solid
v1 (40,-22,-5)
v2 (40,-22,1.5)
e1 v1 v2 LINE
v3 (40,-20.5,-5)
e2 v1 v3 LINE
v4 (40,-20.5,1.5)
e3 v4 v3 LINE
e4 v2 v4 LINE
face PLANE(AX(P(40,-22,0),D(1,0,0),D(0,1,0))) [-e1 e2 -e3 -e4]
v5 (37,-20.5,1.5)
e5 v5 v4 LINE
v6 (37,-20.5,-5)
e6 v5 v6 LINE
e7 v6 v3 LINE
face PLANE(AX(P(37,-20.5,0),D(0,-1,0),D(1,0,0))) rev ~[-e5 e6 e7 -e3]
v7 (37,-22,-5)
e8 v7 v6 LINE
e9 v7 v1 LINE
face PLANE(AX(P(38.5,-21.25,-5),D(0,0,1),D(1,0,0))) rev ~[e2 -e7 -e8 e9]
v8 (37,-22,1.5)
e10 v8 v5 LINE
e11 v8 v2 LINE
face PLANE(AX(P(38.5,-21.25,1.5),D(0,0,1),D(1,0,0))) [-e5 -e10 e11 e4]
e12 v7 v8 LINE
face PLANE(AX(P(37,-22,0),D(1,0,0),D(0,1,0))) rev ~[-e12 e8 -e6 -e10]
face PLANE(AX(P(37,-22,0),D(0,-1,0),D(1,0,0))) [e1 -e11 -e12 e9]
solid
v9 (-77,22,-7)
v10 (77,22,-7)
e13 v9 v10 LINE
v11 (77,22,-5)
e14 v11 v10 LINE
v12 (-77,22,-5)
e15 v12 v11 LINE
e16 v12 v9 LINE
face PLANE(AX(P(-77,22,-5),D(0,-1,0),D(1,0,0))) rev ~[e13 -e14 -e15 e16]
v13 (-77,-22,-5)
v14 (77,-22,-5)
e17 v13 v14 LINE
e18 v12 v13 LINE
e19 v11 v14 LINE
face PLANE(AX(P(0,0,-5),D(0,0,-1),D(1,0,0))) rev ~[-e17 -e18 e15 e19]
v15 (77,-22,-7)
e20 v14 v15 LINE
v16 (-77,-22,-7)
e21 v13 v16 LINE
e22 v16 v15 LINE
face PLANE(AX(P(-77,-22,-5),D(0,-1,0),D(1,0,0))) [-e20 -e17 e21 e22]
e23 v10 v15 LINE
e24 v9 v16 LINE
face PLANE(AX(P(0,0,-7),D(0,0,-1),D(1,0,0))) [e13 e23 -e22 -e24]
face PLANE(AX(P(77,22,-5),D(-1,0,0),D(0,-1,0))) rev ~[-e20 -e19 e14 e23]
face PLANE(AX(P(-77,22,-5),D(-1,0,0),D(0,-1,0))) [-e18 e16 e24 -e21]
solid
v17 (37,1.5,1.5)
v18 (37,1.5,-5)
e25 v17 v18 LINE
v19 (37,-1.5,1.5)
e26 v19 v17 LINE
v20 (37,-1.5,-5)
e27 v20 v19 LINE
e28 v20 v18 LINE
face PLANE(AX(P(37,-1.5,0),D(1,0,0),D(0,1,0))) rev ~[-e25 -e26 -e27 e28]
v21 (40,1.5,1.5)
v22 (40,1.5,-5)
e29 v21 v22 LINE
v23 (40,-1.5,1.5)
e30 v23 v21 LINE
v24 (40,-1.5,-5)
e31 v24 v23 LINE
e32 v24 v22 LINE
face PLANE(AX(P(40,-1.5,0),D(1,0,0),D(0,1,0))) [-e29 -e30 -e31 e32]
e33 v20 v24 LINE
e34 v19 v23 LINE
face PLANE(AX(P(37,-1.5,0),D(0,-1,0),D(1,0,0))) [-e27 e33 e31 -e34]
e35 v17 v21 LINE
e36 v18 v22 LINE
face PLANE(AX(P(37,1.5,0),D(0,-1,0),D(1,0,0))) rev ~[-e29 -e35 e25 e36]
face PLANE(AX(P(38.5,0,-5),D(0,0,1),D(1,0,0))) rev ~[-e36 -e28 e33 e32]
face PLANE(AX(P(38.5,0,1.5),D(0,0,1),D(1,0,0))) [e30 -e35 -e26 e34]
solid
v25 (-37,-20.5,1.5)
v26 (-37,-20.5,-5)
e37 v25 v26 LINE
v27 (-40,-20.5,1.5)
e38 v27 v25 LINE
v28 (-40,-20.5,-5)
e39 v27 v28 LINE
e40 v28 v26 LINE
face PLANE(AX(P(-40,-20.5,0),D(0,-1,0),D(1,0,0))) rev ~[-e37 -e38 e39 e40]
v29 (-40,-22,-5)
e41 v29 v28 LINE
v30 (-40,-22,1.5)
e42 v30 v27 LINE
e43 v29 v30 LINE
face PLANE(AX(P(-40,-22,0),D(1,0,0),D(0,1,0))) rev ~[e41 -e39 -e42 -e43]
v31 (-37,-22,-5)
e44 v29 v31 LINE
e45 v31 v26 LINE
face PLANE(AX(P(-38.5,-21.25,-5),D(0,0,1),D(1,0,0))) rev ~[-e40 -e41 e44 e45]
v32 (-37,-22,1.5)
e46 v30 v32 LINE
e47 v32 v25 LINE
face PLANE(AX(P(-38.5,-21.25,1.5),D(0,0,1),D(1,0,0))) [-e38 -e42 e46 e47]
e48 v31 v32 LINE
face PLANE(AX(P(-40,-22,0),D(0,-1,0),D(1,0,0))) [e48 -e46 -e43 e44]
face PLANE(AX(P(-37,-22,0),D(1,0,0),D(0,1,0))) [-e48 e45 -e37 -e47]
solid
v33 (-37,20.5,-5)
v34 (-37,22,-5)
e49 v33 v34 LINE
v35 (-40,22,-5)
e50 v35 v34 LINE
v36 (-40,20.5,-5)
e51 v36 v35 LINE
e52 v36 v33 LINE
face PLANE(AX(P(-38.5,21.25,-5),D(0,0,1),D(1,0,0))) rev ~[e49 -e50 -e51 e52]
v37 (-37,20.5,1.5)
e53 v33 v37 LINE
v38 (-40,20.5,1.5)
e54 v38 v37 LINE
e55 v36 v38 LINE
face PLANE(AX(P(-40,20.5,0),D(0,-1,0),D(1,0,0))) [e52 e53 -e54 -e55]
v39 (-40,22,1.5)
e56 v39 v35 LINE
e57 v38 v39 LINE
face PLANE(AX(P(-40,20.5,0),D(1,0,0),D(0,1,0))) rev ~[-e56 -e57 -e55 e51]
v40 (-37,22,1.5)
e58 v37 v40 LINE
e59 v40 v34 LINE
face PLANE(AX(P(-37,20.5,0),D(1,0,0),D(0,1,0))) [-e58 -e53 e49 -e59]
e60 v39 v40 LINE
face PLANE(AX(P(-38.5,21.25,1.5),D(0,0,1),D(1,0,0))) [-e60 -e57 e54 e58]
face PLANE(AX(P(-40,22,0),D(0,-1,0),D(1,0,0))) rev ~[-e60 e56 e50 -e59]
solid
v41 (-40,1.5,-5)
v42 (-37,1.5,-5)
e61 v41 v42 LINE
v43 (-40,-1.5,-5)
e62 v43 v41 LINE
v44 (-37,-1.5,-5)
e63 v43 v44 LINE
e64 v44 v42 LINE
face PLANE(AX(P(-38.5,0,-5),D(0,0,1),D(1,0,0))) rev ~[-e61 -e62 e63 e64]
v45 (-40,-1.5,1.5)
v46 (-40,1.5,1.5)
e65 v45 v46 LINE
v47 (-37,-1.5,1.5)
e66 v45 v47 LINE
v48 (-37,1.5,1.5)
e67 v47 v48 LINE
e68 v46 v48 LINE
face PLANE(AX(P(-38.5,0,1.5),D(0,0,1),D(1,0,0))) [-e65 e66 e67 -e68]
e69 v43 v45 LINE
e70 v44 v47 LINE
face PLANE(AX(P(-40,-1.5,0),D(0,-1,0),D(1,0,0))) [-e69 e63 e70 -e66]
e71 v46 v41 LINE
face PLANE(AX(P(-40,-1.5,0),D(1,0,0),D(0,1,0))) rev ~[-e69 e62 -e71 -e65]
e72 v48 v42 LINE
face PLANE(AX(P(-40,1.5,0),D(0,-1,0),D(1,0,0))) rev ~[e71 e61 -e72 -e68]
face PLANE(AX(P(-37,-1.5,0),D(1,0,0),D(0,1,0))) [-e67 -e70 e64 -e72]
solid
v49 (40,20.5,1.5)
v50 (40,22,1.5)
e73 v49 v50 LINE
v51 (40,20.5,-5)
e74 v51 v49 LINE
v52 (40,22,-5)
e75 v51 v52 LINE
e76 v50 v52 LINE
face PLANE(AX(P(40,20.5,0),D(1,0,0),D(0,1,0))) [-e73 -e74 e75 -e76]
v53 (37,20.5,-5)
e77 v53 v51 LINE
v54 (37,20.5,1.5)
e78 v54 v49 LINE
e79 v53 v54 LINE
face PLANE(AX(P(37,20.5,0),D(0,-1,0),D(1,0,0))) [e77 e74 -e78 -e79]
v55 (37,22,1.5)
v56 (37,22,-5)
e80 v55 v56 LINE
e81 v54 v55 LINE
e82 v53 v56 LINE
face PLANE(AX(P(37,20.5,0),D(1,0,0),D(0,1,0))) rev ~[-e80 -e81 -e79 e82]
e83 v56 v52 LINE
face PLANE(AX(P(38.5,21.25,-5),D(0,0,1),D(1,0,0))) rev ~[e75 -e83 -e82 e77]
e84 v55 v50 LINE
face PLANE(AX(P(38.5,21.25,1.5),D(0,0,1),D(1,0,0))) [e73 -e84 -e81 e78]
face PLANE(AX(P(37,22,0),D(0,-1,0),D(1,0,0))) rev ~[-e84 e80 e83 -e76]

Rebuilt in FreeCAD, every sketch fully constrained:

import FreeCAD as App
import Part
import Sketcher
from FreeCAD import Vector


def add_polygon(sketch, points):
    """Adds a closed chain of lines whose ends are joined by coincident constraints."""
    first, n = sketch.GeometryCount, len(points)
    for a, b in zip(points, points[1:] + points[:1]):
        sketch.addGeometry(Part.LineSegment(App.Vector(*a, 0), App.Vector(*b, 0)), False)
    for i in range(n):
        sketch.addConstraint(Sketcher.Constraint("Coincident", first + i, 2, first + (i + 1) % n, 1))

doc = App.newDocument("Part")
params = doc.addObject("Spreadsheet::Sheet", "Params")
for row, (alias, value) in enumerate([
    ("sketch1_width", "3 mm"),
    ("sketch1_height", "1.5 mm"),
    ("pad1_length", "1.5 mm"),
    ("pad1_length2", "5 mm"),
    ("sketch2_width", "154 mm"),
    ("sketch2_height", "44 mm"),
    ("pad2_length", "2 mm"),
], start=1):
    params.set(f"A{row}", alias)
    params.set(f"B{row}", "=" + value)
    params.setAlias(f"B{row}", alias)

body = doc.addObject("PartDesign::Body", "Body")
body.AllowCompound = True

# Sketch on XY plane
sketch1 = doc.addObject("Sketcher::SketchObject", "Sketch")
body.addObject(sketch1)
sketch1.AttachmentSupport = (doc.XY_Plane, [""])
sketch1.MapMode = "FlatFace"
add_polygon(sketch1, [(-40, 1.5), (-40, -1.5), (-37, -1.5), (-37, 1.5)])  # lines 0-3
add_polygon(sketch1, [(-40, -20.5), (-40, -22), (-37, -22), (-37, -20.5)])  # lines 4-7
add_polygon(sketch1, [(37, 22), (37, 20.5), (40, 20.5), (40, 22)])  # lines 8-11
add_polygon(sketch1, [(-40, 22), (-40, 20.5), (-37, 20.5), (-37, 22)])  # lines 12-15
add_polygon(sketch1, [(37, 1.5), (37, -1.5), (40, -1.5), (40, 1.5)])  # lines 16-19
add_polygon(sketch1, [(37, -20.5), (37, -22), (40, -22), (40, -20.5)])  # lines 20-23
sketch1.addConstraint(Sketcher.Constraint("Vertical", 0))
sketch1.addConstraint(Sketcher.Constraint("Horizontal", 1))
sketch1.addConstraint(Sketcher.Constraint("Vertical", 2))
sketch1.addConstraint(Sketcher.Constraint("Horizontal", 3))
sketch1.addConstraint(Sketcher.Constraint("Vertical", 4))
sketch1.addConstraint(Sketcher.Constraint("Horizontal", 5))
sketch1.addConstraint(Sketcher.Constraint("Vertical", 6))
sketch1.addConstraint(Sketcher.Constraint("Horizontal", 7))
sketch1.addConstraint(Sketcher.Constraint("Vertical", 8))
sketch1.addConstraint(Sketcher.Constraint("Horizontal", 9))
sketch1.addConstraint(Sketcher.Constraint("Vertical", 10))
sketch1.addConstraint(Sketcher.Constraint("Horizontal", 11))
sketch1.addConstraint(Sketcher.Constraint("Vertical", 12))
sketch1.addConstraint(Sketcher.Constraint("Horizontal", 13))
sketch1.addConstraint(Sketcher.Constraint("Vertical", 14))
sketch1.addConstraint(Sketcher.Constraint("Horizontal", 15))
sketch1.addConstraint(Sketcher.Constraint("Vertical", 16))
sketch1.addConstraint(Sketcher.Constraint("Horizontal", 17))
sketch1.addConstraint(Sketcher.Constraint("Vertical", 18))
sketch1.addConstraint(Sketcher.Constraint("Horizontal", 19))
sketch1.addConstraint(Sketcher.Constraint("Vertical", 20))
sketch1.addConstraint(Sketcher.Constraint("Horizontal", 21))
sketch1.addConstraint(Sketcher.Constraint("Vertical", 22))
sketch1.addConstraint(Sketcher.Constraint("Horizontal", 23))
sketch1.addConstraint(Sketcher.Constraint("Symmetric", 6, 2, 8, 2, -1, 1))
sketch1.addConstraint(Sketcher.Constraint("Symmetric", 4, 2, 10, 2, -1, 1))
sketch1.addConstraint(Sketcher.Constraint("Symmetric", 2, 2, 16, 2, -1, 1))
sketch1.addConstraint(Sketcher.Constraint("Symmetric", 0, 2, 18, 2, -1, 1))
sketch1.addConstraint(Sketcher.Constraint("Symmetric", 14, 2, 20, 2, -1, 1))
sketch1.addConstraint(Sketcher.Constraint("Symmetric", 12, 2, 22, 2, -1, 1))
sketch1.addConstraint(Sketcher.Constraint("Symmetric", 9, 2, 12, 2, -2))
sketch1.addConstraint(Sketcher.Constraint("Symmetric", 11, 2, 14, 2, -2))
sketch1.addConstraint(Sketcher.Constraint("Horizontal", 1, 2, 16, 2))
sketch1.addConstraint(Sketcher.Constraint("Vertical", 3, 2, 4, 2))
sketch1.addConstraint(Sketcher.Constraint("Vertical", 2, 2, 5, 2))
sketch1.addConstraint(Sketcher.Constraint("Equal", 23, 0))
sketch1.addConstraint(Sketcher.Constraint("DistanceX", 1, 1, 1, 2, 3.0))
sketch1.addConstraint(Sketcher.Constraint("DistanceY", 4, 2, 4, 1, 1.5))
sketch1.addConstraint(Sketcher.Constraint("DistanceX", 0, 2, -1, 1, 40.0))
sketch1.addConstraint(Sketcher.Constraint("DistanceY", 4, 2, -1, 1, 22.0))
sketch1.setExpression("Constraints[60]", "Params.sketch1_width")
sketch1.setExpression("Constraints[61]", "Params.sketch1_height")
pad1 = doc.addObject("PartDesign::Pad", "Pad")
body.addObject(pad1)
pad1.Profile = sketch1
pad1.Type = "TwoLengths"
pad1.setExpression("Length", "Params.pad1_length")
pad1.setExpression("Length2", "Params.pad1_length2")
body2 = doc.addObject("PartDesign::Body", "Body001")

# Sketch on XY plane
sketch2 = doc.addObject("Sketcher::SketchObject", "Sketch001")
body2.addObject(sketch2)
sketch2.AttachmentSupport = (doc.getObject("XY_Plane001"), [""])
sketch2.MapMode = "FlatFace"
sketch2.AttachmentOffset = App.Placement(Vector(0, 0, -5), App.Rotation())
add_polygon(sketch2, [(-77, -22), (-77, 22), (77, 22), (77, -22)])  # lines 0-3
sketch2.addConstraint(Sketcher.Constraint("Vertical", 0))
sketch2.addConstraint(Sketcher.Constraint("Horizontal", 1))
sketch2.addConstraint(Sketcher.Constraint("Vertical", 2))
sketch2.addConstraint(Sketcher.Constraint("Horizontal", 3))
sketch2.addConstraint(Sketcher.Constraint("Symmetric", 0, 2, 2, 2, -1, 1))
sketch2.addConstraint(Sketcher.Constraint("DistanceX", 1, 1, 1, 2, 154.0))
sketch2.addConstraint(Sketcher.Constraint("DistanceY", 0, 1, 0, 2, 44.0))
sketch2.setExpression("Constraints[9]", "Params.sketch2_width")
sketch2.setExpression("Constraints[10]", "Params.sketch2_height")
pad2 = doc.addObject("PartDesign::Pad", "Pad001")
body2.addObject(pad2)
pad2.Profile = sketch2
pad2.setExpression("Length", "Params.pad2_length")
pad2.Reversed = True

doc.recompute()
